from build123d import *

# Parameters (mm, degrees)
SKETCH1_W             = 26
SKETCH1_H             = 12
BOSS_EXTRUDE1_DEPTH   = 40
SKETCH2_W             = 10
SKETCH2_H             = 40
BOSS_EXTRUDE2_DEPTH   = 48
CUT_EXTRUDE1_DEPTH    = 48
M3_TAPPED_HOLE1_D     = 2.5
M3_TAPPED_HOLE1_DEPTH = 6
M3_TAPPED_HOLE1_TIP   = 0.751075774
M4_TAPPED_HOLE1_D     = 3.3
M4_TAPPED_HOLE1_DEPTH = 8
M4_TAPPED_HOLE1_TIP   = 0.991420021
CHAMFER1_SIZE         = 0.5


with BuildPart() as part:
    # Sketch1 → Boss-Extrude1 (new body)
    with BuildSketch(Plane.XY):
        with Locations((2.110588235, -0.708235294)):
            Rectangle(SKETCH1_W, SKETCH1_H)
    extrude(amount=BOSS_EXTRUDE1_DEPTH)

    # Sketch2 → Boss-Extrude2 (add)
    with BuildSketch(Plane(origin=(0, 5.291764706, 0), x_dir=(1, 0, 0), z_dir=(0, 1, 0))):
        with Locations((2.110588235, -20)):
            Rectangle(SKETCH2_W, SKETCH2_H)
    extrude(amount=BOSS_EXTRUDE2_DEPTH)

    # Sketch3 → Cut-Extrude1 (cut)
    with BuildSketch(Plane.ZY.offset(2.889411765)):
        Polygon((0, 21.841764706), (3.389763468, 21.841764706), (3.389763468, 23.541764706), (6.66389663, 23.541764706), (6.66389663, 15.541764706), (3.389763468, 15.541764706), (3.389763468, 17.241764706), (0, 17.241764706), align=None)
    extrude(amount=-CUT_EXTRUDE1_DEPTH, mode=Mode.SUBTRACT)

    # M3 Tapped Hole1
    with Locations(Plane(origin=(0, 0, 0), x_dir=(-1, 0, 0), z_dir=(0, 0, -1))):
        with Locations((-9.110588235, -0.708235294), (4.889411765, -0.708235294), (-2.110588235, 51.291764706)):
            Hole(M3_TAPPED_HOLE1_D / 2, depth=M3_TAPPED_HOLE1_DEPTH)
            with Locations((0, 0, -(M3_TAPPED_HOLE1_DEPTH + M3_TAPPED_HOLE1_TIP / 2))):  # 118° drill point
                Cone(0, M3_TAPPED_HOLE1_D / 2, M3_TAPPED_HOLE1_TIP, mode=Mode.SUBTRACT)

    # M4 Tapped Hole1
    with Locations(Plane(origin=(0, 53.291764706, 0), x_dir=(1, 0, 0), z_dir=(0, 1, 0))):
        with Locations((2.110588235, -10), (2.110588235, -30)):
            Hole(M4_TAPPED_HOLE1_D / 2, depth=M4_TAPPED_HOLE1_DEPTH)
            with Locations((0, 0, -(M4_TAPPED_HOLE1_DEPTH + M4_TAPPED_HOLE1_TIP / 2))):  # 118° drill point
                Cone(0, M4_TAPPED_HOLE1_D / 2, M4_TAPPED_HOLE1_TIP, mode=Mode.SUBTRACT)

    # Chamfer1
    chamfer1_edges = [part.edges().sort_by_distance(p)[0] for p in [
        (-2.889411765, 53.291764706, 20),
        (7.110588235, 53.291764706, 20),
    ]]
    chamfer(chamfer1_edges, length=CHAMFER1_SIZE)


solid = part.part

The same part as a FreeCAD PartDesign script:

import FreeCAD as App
import Part
import Sketcher

V = App.Vector


def edges_at(feature, points):
    """Names of the edges that pass closest to the given points."""
    edges = feature.Shape.Edges
    near = lambda p: min(range(len(edges)), key=lambda i: edges[i].distToShape(Part.Vertex(*p))[0])
    return sorted({f"Edge{near(p) + 1}" for p in points})

doc = App.newDocument("Part")
body = doc.addObject("PartDesign::Body", "Body")

sketch1 = doc.addObject("Sketcher::SketchObject", "Sketch")
body.addObject(sketch1)
sketch1.AttachmentSupport = (doc.XY_Plane, [""])
sketch1.MapMode = "FlatFace"
sketch1.addGeometry(Part.LineSegment(V(-11, 5, 0), V(-11, -7, 0)), False)
sketch1.addGeometry(Part.LineSegment(V(-11, -7, 0), V(15, -7, 0)), False)
sketch1.addGeometry(Part.LineSegment(V(15, -7, 0), V(15, 5, 0)), False)
sketch1.addGeometry(Part.LineSegment(V(15, 5, 0), V(-11, 5, 0)), False)
sketch1.addConstraint(Sketcher.Constraint("Coincident", 0, 2, 1, 1))
sketch1.addConstraint(Sketcher.Constraint("Coincident", 1, 2, 2, 1))
sketch1.addConstraint(Sketcher.Constraint("Coincident", 2, 2, 3, 1))
sketch1.addConstraint(Sketcher.Constraint("Coincident", 3, 2, 0, 1))
sketch1.addConstraint(Sketcher.Constraint("Vertical", 0))
sketch1.addConstraint(Sketcher.Constraint("Horizontal", 1))
sketch1.addConstraint(Sketcher.Constraint("Vertical", 2))
sketch1.addConstraint(Sketcher.Constraint("Horizontal", 3))
sketch1.addConstraint(Sketcher.Constraint("DistanceX", 1, 1, 1, 2, 26.0))
sketch1.addConstraint(Sketcher.Constraint("DistanceY", 0, 2, 0, 1, 12.0))
sketch1.addConstraint(Sketcher.Constraint("DistanceX", 0, 2, -1, 1, 10.889412))
sketch1.addConstraint(Sketcher.Constraint("DistanceY", 0, 2, -1, 1, 6.708235))
pad1 = doc.addObject("PartDesign::Pad", "Pad")
body.addObject(pad1)
pad1.Profile = sketch1
pad1.Length = 40

sketch2 = doc.addObject("Sketcher::SketchObject", "Sketch001")
body.addObject(sketch2)
sketch2.AttachmentSupport = (doc.XZ_Plane, [""])
sketch2.MapMode = "FlatFace"
sketch2.AttachmentOffset = App.Placement(V(0, 0, -5.291765), App.Rotation())
sketch2.addGeometry(Part.LineSegment(V(-3, 0, 0), V(-3, 40, 0)), False)
sketch2.addGeometry(Part.LineSegment(V(-3, 40, 0), V(7, 40, 0)), False)
sketch2.addGeometry(Part.LineSegment(V(7, 40, 0), V(7, 0, 0)), False)
sketch2.addGeometry(Part.LineSegment(V(7, 0, 0), V(-3, 0, 0)), False)
sketch2.addConstraint(Sketcher.Constraint("Coincident", 0, 2, 1, 1))
sketch2.addConstraint(Sketcher.Constraint("Coincident", 1, 2, 2, 1))
sketch2.addConstraint(Sketcher.Constraint("Coincident", 2, 2, 3, 1))
sketch2.addConstraint(Sketcher.Constraint("Coincident", 3, 2, 0, 1))
sketch2.addConstraint(Sketcher.Constraint("Vertical", 0))
sketch2.addConstraint(Sketcher.Constraint("Horizontal", 1))
sketch2.addConstraint(Sketcher.Constraint("Vertical", 2))
sketch2.addConstraint(Sketcher.Constraint("Horizontal", 3))
sketch2.addConstraint(Sketcher.Constraint("PointOnObject", 2, 2, -1))
sketch2.addConstraint(Sketcher.Constraint("DistanceX", 1, 1, 1, 2, 10.0))
sketch2.addConstraint(Sketcher.Constraint("DistanceY", 0, 1, 0, 2, 40.0))
sketch2.addConstraint(Sketcher.Constraint("DistanceX", 0, 2, -1, 1, 2.889412))
pad2 = doc.addObject("PartDesign::Pad", "Pad001")
body.addObject(pad2)
pad2.Profile = sketch2
pad2.Length = 48
pad2.Reversed = True

sketch3 = doc.addObject("Sketcher::SketchObject", "Sketch002")
body.addObject(sketch3)
sketch3.AttachmentSupport = (doc.YZ_Plane, [""])
sketch3.MapMode = "FlatFace"
sketch3.AttachmentOffset = App.Placement(V(0, 0, -2.889412), App.Rotation())
sketch3.addGeometry(Part.LineSegment(V(21.8, 3.4, 0), V(21.8, 0, 0)), False)
sketch3.addGeometry(Part.LineSegment(V(21.8, 0, 0), V(17.2, 0, 0)), False)
sketch3.addGeometry(Part.LineSegment(V(17.2, 0, 0), V(17.2, 3.4, 0)), False)
sketch3.addGeometry(Part.LineSegment(V(17.2, 3.4, 0), V(15.5, 3.4, 0)), False)
sketch3.addGeometry(Part.LineSegment(V(15.5, 3.4, 0), V(15.5, 6.7, 0)), False)
sketch3.addGeometry(Part.LineSegment(V(15.5, 6.7, 0), V(23.5, 6.7, 0)), False)
sketch3.addGeometry(Part.LineSegment(V(23.5, 6.7, 0), V(23.5, 3.4, 0)), False)
sketch3.addGeometry(Part.LineSegment(V(23.5, 3.4, 0), V(21.8, 3.4, 0)), False)
sketch3.addConstraint(Sketcher.Constraint("Coincident", 0, 2, 1, 1))
sketch3.addConstraint(Sketcher.Constraint("Coincident", 1, 2, 2, 1))
sketch3.addConstraint(Sketcher.Constraint("Coincident", 2, 2, 3, 1))
sketch3.addConstraint(Sketcher.Constraint("Coincident", 3, 2, 4, 1))
sketch3.addConstraint(Sketcher.Constraint("Coincident", 4, 2, 5, 1))
sketch3.addConstraint(Sketcher.Constraint("Coincident", 5, 2, 6, 1))
sketch3.addConstraint(Sketcher.Constraint("Coincident", 6, 2, 7, 1))
sketch3.addConstraint(Sketcher.Constraint("Coincident", 7, 2, 0, 1))
sketch3.addConstraint(Sketcher.Constraint("Vertical", 0))
sketch3.addConstraint(Sketcher.Constraint("Horizontal", 1))
sketch3.addConstraint(Sketcher.Constraint("Vertical", 2))
sketch3.addConstraint(Sketcher.Constraint("Horizontal", 3))
sketch3.addConstraint(Sketcher.Constraint("Vertical", 4))
sketch3.addConstraint(Sketcher.Constraint("Horizontal", 5))
sketch3.addConstraint(Sketcher.Constraint("Vertical", 6))
sketch3.addConstraint(Sketcher.Constraint("Horizontal", 7))
sketch3.addConstraint(Sketcher.Constraint("PointOnObject", 0, 2, -1))
sketch3.addConstraint(Sketcher.Constraint("Horizontal", 3, 2, 6, 2))
sketch3.addConstraint(Sketcher.Constraint("Equal", 3, 7))
sketch3.addConstraint(Sketcher.Constraint("DistanceX", 5, 1, 5, 2, 8.0))
sketch3.addConstraint(Sketcher.Constraint("DistanceX", 1, 2, 1, 1, 4.6))
sketch3.addConstraint(Sketcher.Constraint("DistanceY", 0, 2, 0, 1, 3.389763))
sketch3.addConstraint(Sketcher.Constraint("DistanceY", 4, 1, 4, 2, 3.274133))
sketch3.addConstraint(Sketcher.Constraint("DistanceX", -1, 1, 0, 2, 21.841765))
pocket1 = doc.addObject("PartDesign::Pocket", "Pocket")
body.addObject(pocket1)
pocket1.Profile = sketch3
pocket1.Length = 48
pocket1.Reversed = True

sketch4 = doc.addObject("Sketcher::SketchObject", "Sketch003")
body.addObject(sketch4)
sketch4.AttachmentSupport = (doc.XY_Plane, [""])
sketch4.MapMode = "FlatFace"
sketch4.addGeometry(Part.Circle(V(9.1, -0.7, 0), V(0, 0, 1), 1.2), False)
sketch4.addGeometry(Part.Circle(V(-4.9, -0.7, 0), V(0, 0, 1), 1.2), False)
sketch4.addGeometry(Part.Circle(V(2.1, 51.3, 0), V(0, 0, 1), 1.2), False)
sketch4.addConstraint(Sketcher.Constraint("Equal", 0, 1))
sketch4.addConstraint(Sketcher.Constraint("Equal", 1, 2))
sketch4.addConstraint(Sketcher.Constraint("Horizontal", 0, 3, 1, 3))
sketch4.addConstraint(Sketcher.Constraint("Diameter", 0, 2.5))
sketch4.addConstraint(Sketcher.Constraint("DistanceX", 1, 3, 0, 3, 14.0))
sketch4.addConstraint(Sketcher.Constraint("DistanceX", 2, 3, 0, 3, 7.0))
sketch4.addConstraint(Sketcher.Constraint("DistanceY", 0, 3, 2, 3, 52.0))
sketch4.addConstraint(Sketcher.Constraint("DistanceX", -1, 1, 0, 3, 9.110588))
sketch4.addConstraint(Sketcher.Constraint("DistanceY", 0, 3, -1, 1, 0.708235))
doc.recompute()
hole = doc.addObject("PartDesign::Hole", "Hole")
body.addObject(hole)
hole.Profile = sketch4
hole.ThreadType = "None"
hole.Diameter = 2.5
hole.DepthType = "Dimension"
hole.Depth = 6
hole.DrillPoint = "Angled"
hole.DrillPointAngle = 118
hole.Reversed = True

sketch5 = doc.addObject("Sketcher::SketchObject", "Sketch004")
body.addObject(sketch5)
sketch5.AttachmentSupport = (doc.XZ_Plane, [""])
sketch5.MapMode = "FlatFace"
sketch5.AttachmentOffset = App.Placement(V(0, 0, -53.291765), App.Rotation())
sketch5.addGeometry(Part.Circle(V(2.1, 10, 0), V(0, 0, 1), 1.6), False)
sketch5.addGeometry(Part.Circle(V(2.1, 30, 0), V(0, 0, 1), 1.6), False)
sketch5.addConstraint(Sketcher.Constraint("Equal", 0, 1))
sketch5.addConstraint(Sketcher.Constraint("Vertical", 0, 3, 1, 3))
sketch5.addConstraint(Sketcher.Constraint("Diameter", 0, 3.3))
sketch5.addConstraint(Sketcher.Constraint("DistanceY", -1, 1, 0, 3, 10.0))
sketch5.addConstraint(Sketcher.Constraint("DistanceY", -1, 1, 1, 3, 30.0))
sketch5.addConstraint(Sketcher.Constraint("DistanceX", -1, 1, 0, 3, 2.110588))
doc.recompute()
hole2 = doc.addObject("PartDesign::Hole", "Hole001")
body.addObject(hole2)
hole2.Profile = sketch5
hole2.ThreadType = "None"
hole2.Diameter = 3.3
hole2.DepthType = "Dimension"
hole2.Depth = 8
hole2.DrillPoint = "Angled"
hole2.DrillPointAngle = 118
hole2.Reversed = True
doc.recompute()

chamfer = doc.addObject("PartDesign::Chamfer", "Chamfer")
body.addObject(chamfer)
chamfer.Base = (hole2, edges_at(hole2, [(-2.889, 53.292, 20), (7.111, 53.292, 20)]))
chamfer.Size = 0.5

doc.recompute()
